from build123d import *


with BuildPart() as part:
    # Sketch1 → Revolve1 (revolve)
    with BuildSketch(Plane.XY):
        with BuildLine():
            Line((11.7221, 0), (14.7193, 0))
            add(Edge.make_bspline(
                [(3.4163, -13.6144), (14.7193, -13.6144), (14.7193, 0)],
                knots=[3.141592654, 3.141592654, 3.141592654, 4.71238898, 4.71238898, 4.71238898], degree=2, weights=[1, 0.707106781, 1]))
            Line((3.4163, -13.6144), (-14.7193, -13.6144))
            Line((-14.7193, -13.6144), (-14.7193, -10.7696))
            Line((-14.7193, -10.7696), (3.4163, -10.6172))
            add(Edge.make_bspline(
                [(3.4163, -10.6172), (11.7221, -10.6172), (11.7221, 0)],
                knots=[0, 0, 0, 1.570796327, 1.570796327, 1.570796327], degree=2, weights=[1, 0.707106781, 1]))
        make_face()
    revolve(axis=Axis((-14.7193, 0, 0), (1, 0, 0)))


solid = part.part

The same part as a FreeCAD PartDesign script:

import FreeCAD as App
import Part
import Sketcher

V = App.Vector
Q = App.Units.Quantity

doc = App.newDocument("Part")
body = doc.addObject("PartDesign::Body", "Body")

sketch1 = body.newObject("Sketcher::SketchObject", "Sketch")
sketch1.AttachmentSupport = (doc.getObject("XY_Plane"), [""])
sketch1.MapMode = "FlatFace"
sketch1.addGeometry([
    Part.LineSegment(V(14.7193, 0, 0), V(11.7221, 0, 0)),
    Part.BSplineCurve([V(3.4163, -10.6172, 0), V(11.7221, -10.6172, 0), V(11.7221, 0, 0)], [3, 3], [0, 1.570796327], False, 2, [1, 0.707106781, 1], False),
    Part.LineSegment(V(3.4163, -10.6172, 0), V(-14.7193, -10.7696, 0)),
    Part.LineSegment(V(-14.7193, -10.7696, 0), V(-14.7193, -13.6144, 0)),
    Part.LineSegment(V(-14.7193, -13.6144, 0), V(3.4163, -13.6144, 0)),
    Part.BSplineCurve([V(3.4163, -13.6144, 0), V(14.7193, -13.6144, 0), V(14.7193, 0, 0)], [3, 3], [3.141592654, 4.71238898], False, 2, [1, 0.707106781, 1], False),
], False)
sketch1.addConstraint([
    Sketcher.Constraint("Block", 1),
    Sketcher.Constraint("Block", 5),
    Sketcher.Constraint("Coincident", 0, 2, 1, 2),
    Sketcher.Constraint("Coincident", 1, 1, 2, 1),
    Sketcher.Constraint("Coincident", 2, 2, 3, 1),
    Sketcher.Constraint("Coincident", 3, 2, 4, 1),
    Sketcher.Constraint("Coincident", 4, 2, 5, 1),
    Sketcher.Constraint("Coincident", 5, 2, 0, 1),
    Sketcher.Constraint("Vertical", 3),
    Sketcher.Constraint("Horizontal", 4),
    Sketcher.Constraint("DistanceX", 4, 1, 4, 2, Q("0.714 in")),
    Sketcher.Constraint("DistanceY", 3, 2, 3, 1, Q("0.112 in")),
])
revolution = body.newObject("PartDesign::Revolution", "Revolution")
revolution.Profile = sketch1
revolution.ReferenceAxis = (sketch1, ["H_Axis"])
revolution.Angle = 360

doc.recompute()
